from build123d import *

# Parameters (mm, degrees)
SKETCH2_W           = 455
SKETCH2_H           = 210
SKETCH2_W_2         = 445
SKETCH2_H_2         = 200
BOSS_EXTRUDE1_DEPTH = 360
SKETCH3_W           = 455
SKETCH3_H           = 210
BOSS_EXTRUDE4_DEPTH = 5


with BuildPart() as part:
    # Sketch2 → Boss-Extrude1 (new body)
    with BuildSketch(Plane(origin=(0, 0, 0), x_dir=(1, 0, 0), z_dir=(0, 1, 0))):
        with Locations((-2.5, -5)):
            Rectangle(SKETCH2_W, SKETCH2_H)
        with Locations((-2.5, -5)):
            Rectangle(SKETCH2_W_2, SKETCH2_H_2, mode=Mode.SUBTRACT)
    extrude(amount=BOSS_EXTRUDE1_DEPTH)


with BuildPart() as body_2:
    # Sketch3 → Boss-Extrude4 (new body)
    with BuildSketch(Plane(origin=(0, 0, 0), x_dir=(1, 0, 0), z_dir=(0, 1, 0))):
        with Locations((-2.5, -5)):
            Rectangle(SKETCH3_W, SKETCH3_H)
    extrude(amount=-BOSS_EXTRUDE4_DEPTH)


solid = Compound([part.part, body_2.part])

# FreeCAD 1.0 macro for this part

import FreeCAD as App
import Part
import Sketcher
from FreeCAD import Vector
Q = App.Units.Quantity


def add_polygon(sketch, points):
    """Adds a closed chain of lines whose ends are joined by coincident constraints."""
    first, n = sketch.GeometryCount, len(points)
    for a, b in zip(points, points[1:] + points[:1]):
        sketch.addGeometry(Part.LineSegment(App.Vector(*a, 0), App.Vector(*b, 0)), False)
    for i in range(n):
        sketch.addConstraint(Sketcher.Constraint("Coincident", first + i, 2, first + (i + 1) % n, 1))

doc = App.newDocument("Part")
body = doc.addObject("PartDesign::Body", "Body")

# Sketch on XZ plane
sketch1 = doc.addObject("Sketcher::SketchObject", "Sketch")
body.addObject(sketch1)
sketch1.AttachmentSupport = (doc.XZ_Plane, [""])
sketch1.MapMode = "FlatFace"
add_polygon(sketch1, [(-230, -100), (-230, 110), (225, 110), (225, -100)])  # lines 0-3
add_polygon(sketch1, [(220, 105), (-225, 105), (-225, -95), (220, -95)])  # lines 4-7
sketch1.addConstraint(Sketcher.Constraint("Vertical", 0))
sketch1.addConstraint(Sketcher.Constraint("Horizontal", 1))
sketch1.addConstraint(Sketcher.Constraint("Vertical", 2))
sketch1.addConstraint(Sketcher.Constraint("Horizontal", 3))
sketch1.addConstraint(Sketcher.Constraint("Horizontal", 4))
sketch1.addConstraint(Sketcher.Constraint("Vertical", 5))
sketch1.addConstraint(Sketcher.Constraint("Horizontal", 6))
sketch1.addConstraint(Sketcher.Constraint("Vertical", 7))
sketch1.addConstraint(Sketcher.Constraint("DistanceX", 1, 1, 1, 2, Q("455 mm")))
sketch1.addConstraint(Sketcher.Constraint("DistanceX", 4, 2, 4, 1, Q("445 mm")))
sketch1.addConstraint(Sketcher.Constraint("DistanceY", 0, 1, 0, 2, Q("210 mm")))
sketch1.addConstraint(Sketcher.Constraint("DistanceY", 5, 2, 5, 1, Q("200 mm")))
sketch1.addConstraint(Sketcher.Constraint("DistanceX", 0, 2, -1, 1, Q("230 mm")))
sketch1.addConstraint(Sketcher.Constraint("DistanceY", -1, 1, 0, 2, Q("110 mm")))
sketch1.addConstraint(Sketcher.Constraint("DistanceX", 4, 2, -1, 1, Q("225 mm")))
sketch1.addConstraint(Sketcher.Constraint("DistanceY", -1, 1, 4, 2, Q("105 mm")))
pad1 = doc.addObject("PartDesign::Pad", "Pad")
body.addObject(pad1)
pad1.Profile = sketch1
pad1.Length = 360
pad1.Reversed = True
body2 = doc.addObject("PartDesign::Body", "Body001")

# Sketch on XZ plane
sketch2 = doc.addObject("Sketcher::SketchObject", "Sketch001")
body2.addObject(sketch2)
sketch2.AttachmentSupport = (doc.getObject("XZ_Plane001"), [""])
sketch2.MapMode = "FlatFace"
add_polygon(sketch2, [(-230, -100), (-230, 110), (225, 110), (225, -100)])  # lines 0-3
sketch2.addConstraint(Sketcher.Constraint("Vertical", 0))
sketch2.addConstraint(Sketcher.Constraint("Horizontal", 1))
sketch2.addConstraint(Sketcher.Constraint("Vertical", 2))
sketch2.addConstraint(Sketcher.Constraint("Horizontal", 3))
sketch2.addConstraint(Sketcher.Constraint("DistanceX", 1, 1, 1, 2, Q("455 mm")))
sketch2.addConstraint(Sketcher.Constraint("DistanceY", 0, 1, 0, 2, Q("210 mm")))
sketch2.addConstraint(Sketcher.Constraint("DistanceX", 0, 2, -1, 1, Q("230 mm")))
sketch2.addConstraint(Sketcher.Constraint("DistanceY", -1, 1, 0, 2, Q("110 mm")))
pad2 = doc.addObject("PartDesign::Pad", "Pad001")
body2.addObject(pad2)
pad2.Profile = sketch2
pad2.Length = 5

doc.recompute()
